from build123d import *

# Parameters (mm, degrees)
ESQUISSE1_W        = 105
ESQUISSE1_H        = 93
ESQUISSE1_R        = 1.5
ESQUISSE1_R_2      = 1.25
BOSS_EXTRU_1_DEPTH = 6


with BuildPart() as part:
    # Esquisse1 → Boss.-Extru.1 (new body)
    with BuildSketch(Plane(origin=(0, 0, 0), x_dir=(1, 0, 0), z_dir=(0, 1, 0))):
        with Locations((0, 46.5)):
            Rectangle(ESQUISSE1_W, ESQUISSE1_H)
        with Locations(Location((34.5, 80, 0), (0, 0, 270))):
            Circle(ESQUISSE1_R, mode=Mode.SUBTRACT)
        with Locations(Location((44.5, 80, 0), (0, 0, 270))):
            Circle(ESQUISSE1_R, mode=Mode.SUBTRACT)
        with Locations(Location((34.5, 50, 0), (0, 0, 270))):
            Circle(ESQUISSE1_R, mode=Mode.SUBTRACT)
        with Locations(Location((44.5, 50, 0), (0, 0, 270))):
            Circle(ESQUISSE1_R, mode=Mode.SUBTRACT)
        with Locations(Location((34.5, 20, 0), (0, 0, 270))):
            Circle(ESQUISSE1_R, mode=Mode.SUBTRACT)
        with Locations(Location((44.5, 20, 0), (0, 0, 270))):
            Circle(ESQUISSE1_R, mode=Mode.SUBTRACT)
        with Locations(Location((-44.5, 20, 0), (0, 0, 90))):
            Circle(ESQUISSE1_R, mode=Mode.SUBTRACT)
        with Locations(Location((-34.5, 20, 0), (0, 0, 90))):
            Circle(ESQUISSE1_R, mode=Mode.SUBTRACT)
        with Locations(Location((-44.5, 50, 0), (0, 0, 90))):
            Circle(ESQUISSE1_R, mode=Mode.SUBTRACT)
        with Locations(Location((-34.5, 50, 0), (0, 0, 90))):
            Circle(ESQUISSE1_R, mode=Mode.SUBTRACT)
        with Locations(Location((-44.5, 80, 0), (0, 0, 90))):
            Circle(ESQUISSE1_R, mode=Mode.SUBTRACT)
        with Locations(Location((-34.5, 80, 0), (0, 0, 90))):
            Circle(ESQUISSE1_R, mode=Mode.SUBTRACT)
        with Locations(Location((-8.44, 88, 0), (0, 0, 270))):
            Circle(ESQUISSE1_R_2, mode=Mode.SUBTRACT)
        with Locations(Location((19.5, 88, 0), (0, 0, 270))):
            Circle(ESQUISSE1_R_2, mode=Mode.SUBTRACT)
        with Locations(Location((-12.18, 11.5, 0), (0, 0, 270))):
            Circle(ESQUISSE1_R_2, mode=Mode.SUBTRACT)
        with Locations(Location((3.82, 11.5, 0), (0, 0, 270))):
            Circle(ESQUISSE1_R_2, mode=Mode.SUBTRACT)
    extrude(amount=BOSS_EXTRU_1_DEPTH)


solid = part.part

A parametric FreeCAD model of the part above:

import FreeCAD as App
import Part
import Sketcher


def add_polygon(sketch, points):
    """Adds a closed chain of lines whose ends are joined by coincident constraints."""
    first, n = sketch.GeometryCount, len(points)
    for a, b in zip(points, points[1:] + points[:1]):
        sketch.addGeometry(Part.LineSegment(App.Vector(*a, 0), App.Vector(*b, 0)), False)
    for i in range(n):
        sketch.addConstraint(Sketcher.Constraint("Coincident", first + i, 2, first + (i + 1) % n, 1))

doc = App.newDocument("Part")
body = doc.addObject("PartDesign::Body", "Body")

sketch1 = body.newObject("Sketcher::SketchObject", "Sketch")
sketch1.AttachmentSupport = (doc.getObject("XZ_Plane"), [""])
sketch1.MapMode = "FlatFace"
add_polygon(sketch1, [(-52.5, -93), (-52.5, 0), (52.5, 0), (52.5, -93)])
sketch1.addGeometry(Part.Circle(App.Vector(-44.5, -20, 0), App.Vector(0, 0, 1), 1.5), False)
sketch1.addGeometry(Part.Circle(App.Vector(-34.5, -20, 0), App.Vector(0, 0, 1), 1.5), False)
sketch1.addGeometry(Part.Circle(App.Vector(-12.18, -11.5, 0), App.Vector(0, 0, 1), 1.25), False)
sketch1.addGeometry(Part.Circle(App.Vector(3.82, -11.5, 0), App.Vector(0, 0, 1), 1.25), False)
sketch1.addGeometry(Part.Circle(App.Vector(34.5, -20, 0), App.Vector(0, 0, 1), 1.5), False)
sketch1.addGeometry(Part.Circle(App.Vector(44.5, -20, 0), App.Vector(0, 0, 1), 1.5), False)
sketch1.addGeometry(Part.Circle(App.Vector(-44.5, -50, 0), App.Vector(0, 0, 1), 1.5), False)
sketch1.addGeometry(Part.Circle(App.Vector(-34.5, -50, 0), App.Vector(0, 0, 1), 1.5), False)
sketch1.addGeometry(Part.Circle(App.Vector(-44.5, -80, 0), App.Vector(0, 0, 1), 1.5), False)
sketch1.addGeometry(Part.Circle(App.Vector(-34.5, -80, 0), App.Vector(0, 0, 1), 1.5), False)
sketch1.addGeometry(Part.Circle(App.Vector(-8.44, -88, 0), App.Vector(0, 0, 1), 1.25), False)
sketch1.addGeometry(Part.Circle(App.Vector(34.5, -50, 0), App.Vector(0, 0, 1), 1.5), False)
sketch1.addGeometry(Part.Circle(App.Vector(44.5, -50, 0), App.Vector(0, 0, 1), 1.5), False)
sketch1.addGeometry(Part.Circle(App.Vector(19.5, -88, 0), App.Vector(0, 0, 1), 1.25), False)
sketch1.addGeometry(Part.Circle(App.Vector(34.5, -80, 0), App.Vector(0, 0, 1), 1.5), False)
sketch1.addGeometry(Part.Circle(App.Vector(44.5, -80, 0), App.Vector(0, 0, 1), 1.5), False)
sketch1.addConstraint([
    Sketcher.Constraint("Vertical", 0),
    Sketcher.Constraint("Horizontal", 1),
    Sketcher.Constraint("Vertical", 2),
    Sketcher.Constraint("Horizontal", 3),
    Sketcher.Constraint("Equal", 4, 5),
    Sketcher.Constraint("Equal", 6, 7),
    Sketcher.Constraint("Equal", 5, 8),
    Sketcher.Constraint("Equal", 8, 9),
    Sketcher.Constraint("Equal", 9, 10),
    Sketcher.Constraint("Equal", 10, 11),
    Sketcher.Constraint("Equal", 11, 12),
    Sketcher.Constraint("Equal", 12, 13),
    Sketcher.Constraint("Equal", 7, 14),
    Sketcher.Constraint("Equal", 13, 15),
    Sketcher.Constraint("Equal", 15, 16),
    Sketcher.Constraint("Equal", 14, 17),
    Sketcher.Constraint("Equal", 16, 18),
    Sketcher.Constraint("Equal", 18, 19),
    Sketcher.Constraint("Symmetric", 0, 2, 1, 2, -1, 1),
    Sketcher.Constraint("Symmetric", 5, 3, 8, 3, -2),
    Sketcher.Constraint("Symmetric", 4, 3, 9, 3, -2),
    Sketcher.Constraint("Symmetric", 11, 3, 15, 3, -2),
    Sketcher.Constraint("Symmetric", 10, 3, 16, 3, -2),
    Sketcher.Constraint("Symmetric", 13, 3, 18, 3, -2),
    Sketcher.Constraint("Symmetric", 12, 3, 19, 3, -2),
    Sketcher.Constraint("Horizontal", 4, 3, 5, 3),
    Sketcher.Constraint("Horizontal", 6, 3, 7, 3),
    Sketcher.Constraint("Horizontal", 10, 3, 11, 3),
    Sketcher.Constraint("Horizontal", 12, 3, 13, 3),
    Sketcher.Constraint("Horizontal", 14, 3, 17, 3),
    Sketcher.Constraint("Vertical", 4, 3, 10, 3),
    Sketcher.Constraint("Vertical", 5, 3, 11, 3),
    Sketcher.Constraint("Vertical", 10, 3, 12, 3),
    Sketcher.Constraint("Vertical", 11, 3, 13, 3),
    Sketcher.Constraint("Diameter", 4, 3.0),
    Sketcher.Constraint("Diameter", 6, 2.5),
    Sketcher.Constraint("DistanceX", 1, 1, 1, 2, 105.0),
    Sketcher.Constraint("DistanceY", 0, 1, 0, 2, 93.0),
    Sketcher.Constraint("DistanceY", 4, 3, -1, 1, 20.0),
    Sketcher.Constraint("DistanceY", 10, 3, -1, 1, 50.0),
    Sketcher.Constraint("DistanceY", 12, 3, -1, 1, 80.0),
    Sketcher.Constraint("DistanceY", 14, 3, -1, 1, 88.0),
    Sketcher.Constraint("DistanceX", 4, 3, 5, 3, 10.0),
    Sketcher.Constraint("DistanceX", 6, 3, 7, 3, 16.0),
    Sketcher.Constraint("DistanceX", 5, 3, 8, 3, 69.0),
    Sketcher.Constraint("DistanceX", 17, 3, 15, 3, 15.0),
    Sketcher.Constraint("DistanceY", 6, 3, -1, 1, 11.5),
    Sketcher.Constraint("DistanceX", 6, 3, -1, 1, 12.18),
    Sketcher.Constraint("DistanceX", 14, 3, -1, 1, 8.44),
])
pad1 = body.newObject("PartDesign::Pad", "Pad")
pad1.Profile = sketch1
pad1.Length = 6
pad1.Reversed = True

doc.recompute()
